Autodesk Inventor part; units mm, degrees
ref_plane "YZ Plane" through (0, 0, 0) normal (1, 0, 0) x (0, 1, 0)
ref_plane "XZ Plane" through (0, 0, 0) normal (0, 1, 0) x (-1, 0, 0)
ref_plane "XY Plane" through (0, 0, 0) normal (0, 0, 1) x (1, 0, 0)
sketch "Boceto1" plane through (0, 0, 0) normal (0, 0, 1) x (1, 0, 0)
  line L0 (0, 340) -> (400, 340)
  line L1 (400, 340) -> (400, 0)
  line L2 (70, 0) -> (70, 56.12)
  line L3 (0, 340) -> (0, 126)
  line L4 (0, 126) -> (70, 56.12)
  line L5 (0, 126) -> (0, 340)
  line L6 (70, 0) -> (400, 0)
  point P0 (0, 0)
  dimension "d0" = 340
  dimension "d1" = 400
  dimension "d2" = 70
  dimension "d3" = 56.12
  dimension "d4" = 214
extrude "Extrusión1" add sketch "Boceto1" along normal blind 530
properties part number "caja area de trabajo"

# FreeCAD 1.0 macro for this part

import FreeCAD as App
import Part
import Sketcher

V = App.Vector
Q = App.Units.Quantity


def add_polygon(sketch, points):
    """Adds a closed chain of lines whose ends are joined by coincident constraints."""
    first, n = sketch.GeometryCount, len(points)
    for a, b in zip(points, points[1:] + points[:1]):
        sketch.addGeometry(Part.LineSegment(App.Vector(*a, 0), App.Vector(*b, 0)), False)
    for i in range(n):
        sketch.addConstraint(Sketcher.Constraint("Coincident", first + i, 2, first + (i + 1) % n, 1))

doc = App.newDocument("Part")
body = doc.addObject("PartDesign::Body", "Body")

sketch1 = doc.addObject("Sketcher::SketchObject", "Sketch")
body.addObject(sketch1)
sketch1.AttachmentSupport = (doc.XY_Plane, [""])
sketch1.MapMode = "FlatFace"
add_polygon(sketch1, [(400, 340), (0, 340), (0, 126), (70, 56), (70, 0), (400, 0)])
sketch1.addConstraint(Sketcher.Constraint("Horizontal", 0))
sketch1.addConstraint(Sketcher.Constraint("Vertical", 1))
sketch1.addConstraint(Sketcher.Constraint("Vertical", 3))
sketch1.addConstraint(Sketcher.Constraint("Horizontal", 4))
sketch1.addConstraint(Sketcher.Constraint("Vertical", 5))
sketch1.addConstraint(Sketcher.Constraint("PointOnObject", 0, 2, -2))
sketch1.addConstraint(Sketcher.Constraint("PointOnObject", 3, 2, -1))
sketch1.addConstraint(Sketcher.Constraint("DistanceX", 0, 2, 0, 1, Q("400 mm")))
sketch1.addConstraint(Sketcher.Constraint("DistanceY", 1, 2, 1, 1, Q("214 mm")))
sketch1.addConstraint(Sketcher.Constraint("DistanceY", 5, 1, 5, 2, Q("340 mm")))
sketch1.addConstraint(Sketcher.Constraint("DistanceX", -1, 1, 2, 2, Q("70 mm")))
sketch1.addConstraint(Sketcher.Constraint("DistanceY", 3, 2, 3, 1, Q("56.12 mm")))
pad1 = doc.addObject("PartDesign::Pad", "Pad")
body.addObject(pad1)
pad1.Profile = sketch1
pad1.Length = 530

doc.recompute()
